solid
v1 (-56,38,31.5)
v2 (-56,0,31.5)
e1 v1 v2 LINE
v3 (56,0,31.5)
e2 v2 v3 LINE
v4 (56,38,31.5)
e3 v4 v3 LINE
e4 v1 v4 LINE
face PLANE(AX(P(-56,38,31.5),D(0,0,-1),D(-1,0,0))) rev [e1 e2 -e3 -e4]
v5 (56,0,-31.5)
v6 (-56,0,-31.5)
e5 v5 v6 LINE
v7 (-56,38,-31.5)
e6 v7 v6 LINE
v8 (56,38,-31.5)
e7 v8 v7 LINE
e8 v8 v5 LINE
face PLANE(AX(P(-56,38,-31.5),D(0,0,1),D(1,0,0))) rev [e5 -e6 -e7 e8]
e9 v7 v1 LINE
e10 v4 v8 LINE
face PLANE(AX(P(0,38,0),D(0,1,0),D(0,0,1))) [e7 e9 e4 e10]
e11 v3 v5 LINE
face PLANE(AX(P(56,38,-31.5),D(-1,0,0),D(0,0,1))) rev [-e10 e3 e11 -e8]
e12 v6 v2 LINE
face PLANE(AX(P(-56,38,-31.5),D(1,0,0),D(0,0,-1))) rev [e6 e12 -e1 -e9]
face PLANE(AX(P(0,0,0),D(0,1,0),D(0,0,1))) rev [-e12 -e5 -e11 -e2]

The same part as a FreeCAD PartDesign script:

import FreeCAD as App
import Part
import Sketcher

doc = App.newDocument("Part")
params = doc.addObject("Spreadsheet::Sheet", "Params")
for row, (alias, value) in enumerate([
    ("sketch1_width", "112 mm"),
    ("sketch1_height", "63 mm"),
    ("pad1_length", "38 mm"),
], start=1):
    params.set(f"A{row}", alias)
    params.set(f"B{row}", "=" + value)
    params.setAlias(f"B{row}", alias)

body = doc.addObject("PartDesign::Body", "Body")

sketch1 = doc.addObject("Sketcher::SketchObject", "Sketch")
body.addObject(sketch1)
sketch1.AttachmentSupport = (doc.XZ_Plane, [""])
sketch1.MapMode = "FlatFace"
sketch1.addGeometry(Part.LineSegment(App.Vector(-56, -32, 0), App.Vector(-56, 32, 0)), False)
sketch1.addGeometry(Part.LineSegment(App.Vector(-56, 32, 0), App.Vector(56, 32, 0)), False)
sketch1.addGeometry(Part.LineSegment(App.Vector(56, 32, 0), App.Vector(56, -32, 0)), False)
sketch1.addGeometry(Part.LineSegment(App.Vector(56, -32, 0), App.Vector(-56, -32, 0)), False)
sketch1.addConstraint(Sketcher.Constraint("Coincident", 0, 2, 1, 1))
sketch1.addConstraint(Sketcher.Constraint("Coincident", 1, 2, 2, 1))
sketch1.addConstraint(Sketcher.Constraint("Coincident", 2, 2, 3, 1))
sketch1.addConstraint(Sketcher.Constraint("Coincident", 3, 2, 0, 1))
sketch1.addConstraint(Sketcher.Constraint("Vertical", 0))
sketch1.addConstraint(Sketcher.Constraint("Horizontal", 1))
sketch1.addConstraint(Sketcher.Constraint("Vertical", 2))
sketch1.addConstraint(Sketcher.Constraint("Horizontal", 3))
sketch1.addConstraint(Sketcher.Constraint("Symmetric", 0, 2, 2, 2, -1, 1))
sketch1.addConstraint(Sketcher.Constraint("DistanceX", 1, 1, 1, 2, 112.0))
sketch1.addConstraint(Sketcher.Constraint("DistanceY", 0, 1, 0, 2, 63.0))
sketch1.setExpression("Constraints[9]", "Params.sketch1_width")
sketch1.setExpression("Constraints[10]", "Params.sketch1_height")
pad1 = doc.addObject("PartDesign::Pad", "Pad")
body.addObject(pad1)
pad1.Profile = sketch1
pad1.setExpression("Length", "Params.pad1_length")
pad1.Reversed = True

doc.recompute()
